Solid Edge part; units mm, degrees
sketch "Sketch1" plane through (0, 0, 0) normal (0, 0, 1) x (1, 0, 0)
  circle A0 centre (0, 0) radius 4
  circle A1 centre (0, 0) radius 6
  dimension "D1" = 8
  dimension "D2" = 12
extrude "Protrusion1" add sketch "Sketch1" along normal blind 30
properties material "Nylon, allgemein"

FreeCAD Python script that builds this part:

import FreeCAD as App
import Part
import Sketcher
Q = App.Units.Quantity

doc = App.newDocument("Part")
params = doc.addObject("Spreadsheet::Sheet", "Params")
for row, (alias, value) in enumerate([
    ("sketch1_diameter", "12 mm"),
    ("sketch1_diameter2", "8 mm"),
    ("pad1_length", "30 mm"),
], start=1):
    params.set(f"A{row}", alias)
    params.set(f"B{row}", "=" + value)
    params.setAlias(f"B{row}", alias)

body = doc.addObject("PartDesign::Body", "Body")

sketch1 = body.newObject("Sketcher::SketchObject", "Sketch")
sketch1.AttachmentSupport = (doc.getObject("XY_Plane"), [""])
sketch1.MapMode = "FlatFace"
sketch1.addGeometry([
    Part.Circle(App.Vector(0, 0, 0), App.Vector(0, 0, 1), 6),
    Part.Circle(App.Vector(0, 0, 0), App.Vector(0, 0, 1), 4),
], False)
sketch1.addConstraint([
    Sketcher.Constraint("Coincident", 0, 3, -1, 1),
    Sketcher.Constraint("Coincident", 1, 3, -1, 1),
    Sketcher.Constraint("Diameter", 0, Q("12 mm")),
    Sketcher.Constraint("Diameter", 1, Q("8 mm")),
])
sketch1.setExpression("Constraints[2]", "Params.sketch1_diameter")
sketch1.setExpression("Constraints[3]", "Params.sketch1_diameter2")
pad1 = body.newObject("PartDesign::Pad", "Pad")
pad1.Profile = sketch1
pad1.setExpression("Length", "Params.pad1_length")

doc.recompute()
